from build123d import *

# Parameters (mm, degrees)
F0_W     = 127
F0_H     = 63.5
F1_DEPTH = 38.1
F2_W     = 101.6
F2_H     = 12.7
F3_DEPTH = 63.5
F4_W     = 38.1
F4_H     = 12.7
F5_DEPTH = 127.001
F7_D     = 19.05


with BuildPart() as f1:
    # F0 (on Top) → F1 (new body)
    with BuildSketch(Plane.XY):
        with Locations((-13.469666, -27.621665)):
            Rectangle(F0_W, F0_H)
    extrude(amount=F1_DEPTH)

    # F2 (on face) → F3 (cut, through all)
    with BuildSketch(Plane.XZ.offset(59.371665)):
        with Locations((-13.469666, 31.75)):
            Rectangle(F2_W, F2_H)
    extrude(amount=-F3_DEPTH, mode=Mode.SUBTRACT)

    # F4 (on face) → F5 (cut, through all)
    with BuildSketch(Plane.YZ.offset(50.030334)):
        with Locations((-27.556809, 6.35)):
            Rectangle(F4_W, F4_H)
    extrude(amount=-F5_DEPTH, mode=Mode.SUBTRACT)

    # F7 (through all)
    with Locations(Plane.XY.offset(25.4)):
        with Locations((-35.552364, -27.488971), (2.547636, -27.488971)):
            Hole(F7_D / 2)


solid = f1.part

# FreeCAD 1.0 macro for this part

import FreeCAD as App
import Part
import Sketcher
from FreeCAD import Vector
Q = App.Units.Quantity

doc = App.newDocument("Part")
body = doc.addObject("PartDesign::Body", "Body")

# Sketch on XY plane
sketch1 = doc.addObject("Sketcher::SketchObject", "Sketch")
body.addObject(sketch1)
sketch1.AttachmentSupport = (doc.XY_Plane, [""])
sketch1.MapMode = "FlatFace"
sketch1.addGeometry(Part.LineSegment(Vector(-77, 4, 0), Vector(-77, -59, 0)), False)
sketch1.addGeometry(Part.LineSegment(Vector(-77, -59, 0), Vector(50, -59, 0)), False)
sketch1.addGeometry(Part.LineSegment(Vector(50, -59, 0), Vector(50, 4, 0)), False)
sketch1.addGeometry(Part.LineSegment(Vector(50, 4, 0), Vector(-77, 4, 0)), False)
sketch1.addConstraint(Sketcher.Constraint("Coincident", 0, 2, 1, 1))
sketch1.addConstraint(Sketcher.Constraint("Coincident", 1, 2, 2, 1))
sketch1.addConstraint(Sketcher.Constraint("Coincident", 2, 2, 3, 1))
sketch1.addConstraint(Sketcher.Constraint("Coincident", 3, 2, 0, 1))
sketch1.addConstraint(Sketcher.Constraint("Vertical", 0))
sketch1.addConstraint(Sketcher.Constraint("Horizontal", 1))
sketch1.addConstraint(Sketcher.Constraint("Vertical", 2))
sketch1.addConstraint(Sketcher.Constraint("Horizontal", 3))
sketch1.addConstraint(Sketcher.Constraint("DistanceX", 1, 1, 1, 2, Q("5 in")))
sketch1.addConstraint(Sketcher.Constraint("DistanceY", 0, 2, 0, 1, Q("2.5 in")))
sketch1.addConstraint(Sketcher.Constraint("DistanceX", 0, 2, -1, 1, Q("76.969666 mm")))
sketch1.addConstraint(Sketcher.Constraint("DistanceY", 0, 2, -1, 1, Q("59.371665 mm")))
pad1 = doc.addObject("PartDesign::Pad", "Pad")
body.addObject(pad1)
pad1.Profile = sketch1
pad1.Length = Q("1.5 in")

# Sketch on XZ plane
sketch2 = doc.addObject("Sketcher::SketchObject", "Sketch001")
body.addObject(sketch2)
sketch2.AttachmentSupport = (doc.XZ_Plane, [""])
sketch2.MapMode = "FlatFace"
sketch2.AttachmentOffset = App.Placement(Vector(0, 0, 59.371665), App.Rotation())
sketch2.addGeometry(Part.LineSegment(Vector(-64, 38, 0), Vector(-64, 25, 0)), False)
sketch2.addGeometry(Part.LineSegment(Vector(-64, 25, 0), Vector(37, 25, 0)), False)
sketch2.addGeometry(Part.LineSegment(Vector(37, 25, 0), Vector(37, 38, 0)), False)
sketch2.addGeometry(Part.LineSegment(Vector(37, 38, 0), Vector(-64, 38, 0)), False)
sketch2.addConstraint(Sketcher.Constraint("Coincident", 0, 2, 1, 1))
sketch2.addConstraint(Sketcher.Constraint("Coincident", 1, 2, 2, 1))
sketch2.addConstraint(Sketcher.Constraint("Coincident", 2, 2, 3, 1))
sketch2.addConstraint(Sketcher.Constraint("Coincident", 3, 2, 0, 1))
sketch2.addConstraint(Sketcher.Constraint("Vertical", 0))
sketch2.addConstraint(Sketcher.Constraint("Horizontal", 1))
sketch2.addConstraint(Sketcher.Constraint("Vertical", 2))
sketch2.addConstraint(Sketcher.Constraint("Horizontal", 3))
sketch2.addConstraint(Sketcher.Constraint("DistanceX", 1, 1, 1, 2, Q("4 in")))
sketch2.addConstraint(Sketcher.Constraint("DistanceY", 0, 2, 0, 1, Q("0.5 in")))
sketch2.addConstraint(Sketcher.Constraint("DistanceY", -1, 1, 0, 2, Q("1 in")))
sketch2.addConstraint(Sketcher.Constraint("DistanceX", 0, 2, -1, 1, Q("64.269666 mm")))
pocket1 = doc.addObject("PartDesign::Pocket", "Pocket")
body.addObject(pocket1)
pocket1.Profile = sketch2
pocket1.Type = "ThroughAll"

# Sketch on YZ plane
sketch3 = doc.addObject("Sketcher::SketchObject", "Sketch002")
body.addObject(sketch3)
sketch3.AttachmentSupport = (doc.YZ_Plane, [""])
sketch3.MapMode = "FlatFace"
sketch3.AttachmentOffset = App.Placement(Vector(0, 0, 50.030334), App.Rotation())
sketch3.addGeometry(Part.LineSegment(Vector(-47, 13, 0), Vector(-47, 0, 0)), False)
sketch3.addGeometry(Part.LineSegment(Vector(-47, 0, 0), Vector(-9, 0, 0)), False)
sketch3.addGeometry(Part.LineSegment(Vector(-9, 0, 0), Vector(-9, 13, 0)), False)
sketch3.addGeometry(Part.LineSegment(Vector(-9, 13, 0), Vector(-47, 13, 0)), False)
sketch3.addConstraint(Sketcher.Constraint("Coincident", 0, 2, 1, 1))
sketch3.addConstraint(Sketcher.Constraint("Coincident", 1, 2, 2, 1))
sketch3.addConstraint(Sketcher.Constraint("Coincident", 2, 2, 3, 1))
sketch3.addConstraint(Sketcher.Constraint("Coincident", 3, 2, 0, 1))
sketch3.addConstraint(Sketcher.Constraint("Vertical", 0))
sketch3.addConstraint(Sketcher.Constraint("Horizontal", 1))
sketch3.addConstraint(Sketcher.Constraint("Vertical", 2))
sketch3.addConstraint(Sketcher.Constraint("Horizontal", 3))
sketch3.addConstraint(Sketcher.Constraint("PointOnObject", 0, 2, -1))
sketch3.addConstraint(Sketcher.Constraint("DistanceX", 1, 1, 1, 2, Q("1.5 in")))
sketch3.addConstraint(Sketcher.Constraint("DistanceY", 0, 2, 0, 1, Q("0.5 in")))
sketch3.addConstraint(Sketcher.Constraint("DistanceX", 0, 2, -1, 1, Q("46.606809 mm")))
pocket2 = doc.addObject("PartDesign::Pocket", "Pocket001")
body.addObject(pocket2)
pocket2.Profile = sketch3
pocket2.Type = "ThroughAll"

# Sketch on XY plane
sketch4 = doc.addObject("Sketcher::SketchObject", "Sketch003")
body.addObject(sketch4)
sketch4.AttachmentSupport = (doc.XY_Plane, [""])
sketch4.MapMode = "FlatFace"
sketch4.AttachmentOffset = App.Placement(Vector(0, 0, 1 * 25.4), App.Rotation())
sketch4.addGeometry(Part.Circle(Vector(-36, -27, 0), Vector(0, 0, 1), 10), False)
sketch4.addGeometry(Part.Circle(Vector(3, -27, 0), Vector(0, 0, 1), 10), False)
sketch4.addConstraint(Sketcher.Constraint("Equal", 0, 1))
sketch4.addConstraint(Sketcher.Constraint("Horizontal", 0, 3, 1, 3))
sketch4.addConstraint(Sketcher.Constraint("Diameter", 0, Q("0.75 in")))
sketch4.addConstraint(Sketcher.Constraint("DistanceX", 0, 3, 1, 3, Q("1.5 in")))
sketch4.addConstraint(Sketcher.Constraint("DistanceY", 0, 3, -1, 1, Q("27.488971 mm")))
sketch4.addConstraint(Sketcher.Constraint("DistanceX", 0, 3, -1, 1, Q("35.552364 mm")))
doc.recompute()
hole = doc.addObject("PartDesign::Hole", "Hole")
body.addObject(hole)
hole.Profile = sketch4
hole.ThreadType = "None"
hole.Diameter = Q("0.75 in")
hole.DepthType = "ThroughAll"

doc.recompute()
